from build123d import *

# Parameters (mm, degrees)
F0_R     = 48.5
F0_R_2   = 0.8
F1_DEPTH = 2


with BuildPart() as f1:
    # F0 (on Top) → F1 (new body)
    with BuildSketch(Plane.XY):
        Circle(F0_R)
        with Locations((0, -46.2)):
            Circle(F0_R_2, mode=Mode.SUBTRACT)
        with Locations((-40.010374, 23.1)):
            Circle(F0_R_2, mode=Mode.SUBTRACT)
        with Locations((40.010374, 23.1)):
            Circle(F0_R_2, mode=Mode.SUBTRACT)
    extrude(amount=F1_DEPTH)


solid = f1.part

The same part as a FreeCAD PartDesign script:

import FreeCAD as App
import Part
import Sketcher

V = App.Vector

doc = App.newDocument("Part")
body = doc.addObject("PartDesign::Body", "Body")

# Sketch on XY plane
sketch1 = body.newObject("Sketcher::SketchObject", "Sketch")
sketch1.AttachmentSupport = (doc.getObject("XY_Plane"), [""])
sketch1.MapMode = "FlatFace"
sketch1.addGeometry([
    Part.Circle(V(0, 0, 0), V(0, 0, 1), 48.5),
    Part.Circle(V(0, -46.2, 0), V(0, 0, 1), 0.8),
    Part.Circle(V(-40, 23.1, 0), V(0, 0, 1), 0.8),
    Part.Circle(V(40, 23.1, 0), V(0, 0, 1), 0.8),
], False)
sketch1.addConstraint([
    Sketcher.Constraint("Coincident", 0, 3, -1, 1),
    Sketcher.Constraint("Equal", 1, 2),
    Sketcher.Constraint("Equal", 2, 3),
    Sketcher.Constraint("Symmetric", 2, 3, 3, 3, -2),
    Sketcher.Constraint("PointOnObject", 1, 3, -2),
    Sketcher.Constraint("Diameter", 0, 97.0),
    Sketcher.Constraint("Diameter", 1, 1.6),
    Sketcher.Constraint("DistanceY", 1, 3, -1, 1, 46.2),
    Sketcher.Constraint("DistanceY", -1, 1, 2, 3, 23.1),
    Sketcher.Constraint("DistanceX", 2, 3, -1, 1, 40.010374),
])
pad1 = body.newObject("PartDesign::Pad", "Pad")
pad1.Profile = sketch1
pad1.Length = 2

doc.recompute()
